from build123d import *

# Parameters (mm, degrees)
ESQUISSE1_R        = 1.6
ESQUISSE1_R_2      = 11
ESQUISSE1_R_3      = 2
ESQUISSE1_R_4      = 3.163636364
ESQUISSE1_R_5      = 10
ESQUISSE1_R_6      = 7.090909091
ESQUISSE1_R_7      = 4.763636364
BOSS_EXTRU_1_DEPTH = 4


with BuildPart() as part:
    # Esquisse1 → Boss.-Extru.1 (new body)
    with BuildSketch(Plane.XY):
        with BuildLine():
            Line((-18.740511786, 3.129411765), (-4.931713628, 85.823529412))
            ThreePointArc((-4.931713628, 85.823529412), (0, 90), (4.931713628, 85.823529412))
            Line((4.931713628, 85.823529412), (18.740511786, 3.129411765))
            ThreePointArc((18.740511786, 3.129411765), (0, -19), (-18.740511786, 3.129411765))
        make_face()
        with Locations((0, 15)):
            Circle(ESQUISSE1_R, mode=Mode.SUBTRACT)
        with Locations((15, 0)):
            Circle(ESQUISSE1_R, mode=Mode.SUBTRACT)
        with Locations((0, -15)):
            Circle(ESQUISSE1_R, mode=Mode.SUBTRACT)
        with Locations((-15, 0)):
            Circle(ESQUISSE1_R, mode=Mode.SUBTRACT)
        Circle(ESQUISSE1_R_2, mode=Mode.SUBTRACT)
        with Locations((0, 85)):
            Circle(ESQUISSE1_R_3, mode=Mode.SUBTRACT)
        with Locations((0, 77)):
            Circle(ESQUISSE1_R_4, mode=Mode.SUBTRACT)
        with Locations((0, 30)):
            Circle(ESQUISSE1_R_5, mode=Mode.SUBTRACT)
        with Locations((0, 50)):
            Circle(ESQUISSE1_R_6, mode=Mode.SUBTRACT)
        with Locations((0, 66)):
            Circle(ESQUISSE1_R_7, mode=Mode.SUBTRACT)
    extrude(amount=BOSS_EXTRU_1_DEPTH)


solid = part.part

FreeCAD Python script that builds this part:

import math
import FreeCAD as App
import Part
import Sketcher

doc = App.newDocument("Part")
body = doc.addObject("PartDesign::Body", "Body")

# Sketch on XY plane
sketch1 = body.newObject("Sketcher::SketchObject", "Sketch")
sketch1.AttachmentSupport = (doc.getObject("XY_Plane"), [""])
sketch1.MapMode = "FlatFace"
sketch1.addGeometry([
    Part.LineSegment(App.Vector(-4.931714, 85.823529, 0), App.Vector(-18.740512, 3.129412, 0)),  # 0
    Part.ArcOfCircle(Part.Circle(App.Vector(0, 0, 0), App.Vector(0, 0, 1), 19), math.radians(170.519851), math.radians(369.480149)),  # 1
    Part.LineSegment(App.Vector(18.740512, 3.129412, 0), App.Vector(4.931714, 85.823529, 0)),  # 2
    Part.ArcOfCircle(Part.Circle(App.Vector(0, 85, 0), App.Vector(0, 0, 1), 5), math.radians(9.480149), math.radians(170.519851)),  # 3
    Part.Circle(App.Vector(15, 0, 0), App.Vector(0, 0, 1), 1.6),  # 4
    Part.Circle(App.Vector(0, -15, 0), App.Vector(0, 0, 1), 1.6),  # 5
    Part.Circle(App.Vector(0, 0, 0), App.Vector(0, 0, 1), 11),  # 6
    Part.Circle(App.Vector(-15, 0, 0), App.Vector(0, 0, 1), 1.6),  # 7
    Part.Circle(App.Vector(0, 15, 0), App.Vector(0, 0, 1), 1.6),  # 8
    Part.Circle(App.Vector(0, 30, 0), App.Vector(0, 0, 1), 10),  # 9
    Part.Circle(App.Vector(0, 50, 0), App.Vector(0, 0, 1), 7.090909),  # 10
    Part.Circle(App.Vector(0, 66, 0), App.Vector(0, 0, 1), 4.763636),  # 11
    Part.Circle(App.Vector(0, 77, 0), App.Vector(0, 0, 1), 3.163636),  # 12
    Part.Circle(App.Vector(0, 85, 0), App.Vector(0, 0, 1), 2),  # 13
], False)
sketch1.addConstraint([
    Sketcher.Constraint("Tangent", 0, 2, 1, 1),
    Sketcher.Constraint("Tangent", 1, 2, 2, 1),
    Sketcher.Constraint("Tangent", 2, 2, 3, 1),
    Sketcher.Constraint("Tangent", 3, 2, 0, 1),
    Sketcher.Constraint("Coincident", 1, 3, -1, 1),
    Sketcher.Constraint("Coincident", 6, 3, -1, 1),
    Sketcher.Constraint("Coincident", 13, 3, 3, 3),
    Sketcher.Constraint("Equal", 4, 5),
    Sketcher.Constraint("Equal", 5, 7),
    Sketcher.Constraint("Equal", 7, 8),
    Sketcher.Constraint("Symmetric", 4, 3, 7, 3, -1, 1),
    Sketcher.Constraint("Symmetric", 5, 3, 8, 3, -1, 1),
    Sketcher.Constraint("PointOnObject", 3, 3, -2),
    Sketcher.Constraint("PointOnObject", 4, 3, -1),
    Sketcher.Constraint("PointOnObject", 5, 3, -2),
    Sketcher.Constraint("PointOnObject", 9, 3, -2),
    Sketcher.Constraint("PointOnObject", 10, 3, -2),
    Sketcher.Constraint("PointOnObject", 11, 3, -2),
    Sketcher.Constraint("PointOnObject", 12, 3, -2),
    Sketcher.Constraint("Diameter", 6, 22.0),
    Sketcher.Constraint("Diameter", 9, 20.0),
    Sketcher.Constraint("Diameter", 13, 4.0),
    Sketcher.Constraint("Radius", 1, 19.0),
    Sketcher.Constraint("Radius", 3, 5.0),
    Sketcher.Constraint("Diameter", 4, 3.2),
    Sketcher.Constraint("DistanceY", -1, 1, 3, 3, 85.0),
    Sketcher.Constraint("DistanceX", -1, 1, 4, 3, 15.0),
    Sketcher.Constraint("DistanceY", 5, 3, -1, 1, 15.0),
    Sketcher.Constraint("DistanceY", -1, 1, 9, 3, 30.0),
    Sketcher.Constraint("DistanceY", -1, 1, 10, 3, 50.0),
    Sketcher.Constraint("DistanceY", -1, 1, 11, 3, 66.0),
    Sketcher.Constraint("DistanceY", -1, 1, 12, 3, 77.0),
    Sketcher.Constraint("Diameter", 10, 14.181818),
    Sketcher.Constraint("Diameter", 11, 9.527273),
    Sketcher.Constraint("Diameter", 12, 6.327273),
])
pad1 = body.newObject("PartDesign::Pad", "Pad")
pad1.Profile = sketch1
pad1.Length = 4

doc.recompute()
